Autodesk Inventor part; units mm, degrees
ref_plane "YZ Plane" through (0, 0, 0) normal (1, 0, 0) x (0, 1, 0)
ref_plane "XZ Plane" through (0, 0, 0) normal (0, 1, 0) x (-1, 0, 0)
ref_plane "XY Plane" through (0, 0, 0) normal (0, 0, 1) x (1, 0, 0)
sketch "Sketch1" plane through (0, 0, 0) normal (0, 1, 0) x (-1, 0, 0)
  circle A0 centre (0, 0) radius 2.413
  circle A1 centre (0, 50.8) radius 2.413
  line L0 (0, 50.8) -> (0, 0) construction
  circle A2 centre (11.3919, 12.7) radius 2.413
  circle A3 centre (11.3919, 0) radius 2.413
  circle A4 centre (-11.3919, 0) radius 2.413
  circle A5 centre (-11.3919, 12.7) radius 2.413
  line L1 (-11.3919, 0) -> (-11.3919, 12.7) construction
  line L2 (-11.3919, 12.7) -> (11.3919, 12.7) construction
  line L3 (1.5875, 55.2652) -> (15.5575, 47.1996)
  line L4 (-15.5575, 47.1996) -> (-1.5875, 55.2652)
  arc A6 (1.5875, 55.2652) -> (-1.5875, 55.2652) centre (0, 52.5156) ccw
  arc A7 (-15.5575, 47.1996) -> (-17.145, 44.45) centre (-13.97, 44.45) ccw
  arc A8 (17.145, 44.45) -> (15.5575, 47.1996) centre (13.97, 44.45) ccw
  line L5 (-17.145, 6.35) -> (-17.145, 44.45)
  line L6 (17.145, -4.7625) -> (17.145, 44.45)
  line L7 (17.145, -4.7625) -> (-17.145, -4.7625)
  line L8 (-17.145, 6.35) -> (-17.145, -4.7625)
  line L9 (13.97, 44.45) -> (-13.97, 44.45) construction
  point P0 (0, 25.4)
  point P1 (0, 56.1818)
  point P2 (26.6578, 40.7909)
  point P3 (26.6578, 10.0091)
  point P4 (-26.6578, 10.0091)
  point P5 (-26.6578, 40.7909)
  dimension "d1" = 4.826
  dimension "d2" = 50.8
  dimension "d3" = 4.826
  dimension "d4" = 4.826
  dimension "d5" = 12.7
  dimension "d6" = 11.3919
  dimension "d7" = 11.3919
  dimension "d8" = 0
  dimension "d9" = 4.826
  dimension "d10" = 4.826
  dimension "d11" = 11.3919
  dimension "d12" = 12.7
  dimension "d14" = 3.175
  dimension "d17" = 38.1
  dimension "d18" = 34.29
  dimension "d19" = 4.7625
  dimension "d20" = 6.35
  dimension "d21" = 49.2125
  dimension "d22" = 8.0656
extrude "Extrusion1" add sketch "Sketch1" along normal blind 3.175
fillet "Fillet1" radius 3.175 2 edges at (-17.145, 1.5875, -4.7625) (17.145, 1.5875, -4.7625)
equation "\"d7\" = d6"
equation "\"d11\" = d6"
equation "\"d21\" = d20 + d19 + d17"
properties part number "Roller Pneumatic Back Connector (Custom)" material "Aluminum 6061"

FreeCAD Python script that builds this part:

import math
import FreeCAD as App
import Part
import Sketcher

V = App.Vector
Q = App.Units.Quantity


def edges_at(feature, points):
    """Names of the edges that pass closest to the given points."""
    edges = feature.Shape.Edges
    near = lambda p: min(range(len(edges)), key=lambda i: edges[i].distToShape(Part.Vertex(*p))[0])
    return sorted({f"Edge{near(p) + 1}" for p in points})

doc = App.newDocument("Part")
body = doc.addObject("PartDesign::Body", "Body")

# Sketch on XZ plane
sketch1 = doc.addObject("Sketcher::SketchObject", "Sketch")
body.addObject(sketch1)
sketch1.AttachmentSupport = (doc.XZ_Plane, [""])
sketch1.MapMode = "FlatFace"
sketch1.addGeometry([
    Part.LineSegment(V(-15.6, 47.2, 0), V(-1.6, 55.3, 0)),  # 0
    Part.ArcOfCircle(Part.Circle(V(0, 52.5, 0), V(0, 0, 1), 3.2), math.radians(60), math.radians(120)),  # 1
    Part.LineSegment(V(1.6, 55.3, 0), V(15.6, 47.2, 0)),  # 2
    Part.ArcOfCircle(Part.Circle(V(14, 44.5, 0), V(0, 0, 1), 3.2), math.radians(0), math.radians(60)),  # 3
    Part.LineSegment(V(17.1, 44.5, 0), V(17.1, -4.8, 0)),  # 4
    Part.LineSegment(V(17.1, -4.8, 0), V(-17.1, -4.8, 0)),  # 5
    Part.LineSegment(V(-17.1, -4.8, 0), V(-17.1, 44.5, 0)),  # 6
    Part.ArcOfCircle(Part.Circle(V(-14, 44.5, 0), V(0, 0, 1), 3.2), math.radians(120), math.radians(180)),  # 7
    Part.Circle(V(11.4, 0, 0), V(0, 0, 1), 2.4),  # 8
    Part.Circle(V(0, 0, 0), V(0, 0, 1), 2.4),  # 9
    Part.Circle(V(11.4, 12.7, 0), V(0, 0, 1), 2.4),  # 10
    Part.Circle(V(-11.4, 0, 0), V(0, 0, 1), 2.4),  # 11
    Part.Circle(V(-11.4, 12.7, 0), V(0, 0, 1), 2.4),  # 12
    Part.Circle(V(0, 50.8, 0), V(0, 0, 1), 2.4),  # 13
], False)
sketch1.addConstraint([
    Sketcher.Constraint("Tangent", 0, 2, 1, 2),
    Sketcher.Constraint("Tangent", 1, 1, 2, 1),
    Sketcher.Constraint("Tangent", 2, 2, 3, 2),
    Sketcher.Constraint("Tangent", 3, 1, 4, 1),
    Sketcher.Constraint("Coincident", 4, 2, 5, 1),
    Sketcher.Constraint("Coincident", 5, 2, 6, 1),
    Sketcher.Constraint("Tangent", 6, 2, 7, 2),
    Sketcher.Constraint("Tangent", 7, 1, 0, 1),
    Sketcher.Constraint("Vertical", 4),
    Sketcher.Constraint("Horizontal", 5),
    Sketcher.Constraint("Vertical", 6),
    Sketcher.Constraint("Coincident", 9, 3, -1, 1),
    Sketcher.Constraint("Equal", 1, 3),
    Sketcher.Constraint("Equal", 3, 7),
    Sketcher.Constraint("Equal", 8, 9),
    Sketcher.Constraint("Equal", 9, 10),
    Sketcher.Constraint("Equal", 10, 11),
    Sketcher.Constraint("Equal", 11, 12),
    Sketcher.Constraint("Equal", 12, 13),
    Sketcher.Constraint("Symmetric", 8, 3, 11, 3, -1, 1),
    Sketcher.Constraint("Symmetric", 3, 3, 7, 3, -2),
    Sketcher.Constraint("Symmetric", 10, 3, 12, 3, -2),
    Sketcher.Constraint("PointOnObject", 1, 3, -2),
    Sketcher.Constraint("PointOnObject", 8, 3, -1),
    Sketcher.Constraint("PointOnObject", 13, 3, -2),
    Sketcher.Constraint("Vertical", 8, 3, 10, 3),
    Sketcher.Constraint("Diameter", 8, Q("0.19 in")),
    Sketcher.Constraint("DistanceY", -1, 1, 13, 3, Q("2 in")),
    Sketcher.Constraint("Radius", 1, Q("0.125 in")),
    Sketcher.Constraint("DistanceX", 5, 2, 5, 1, Q("1.35 in")),
    Sketcher.Constraint("DistanceY", -1, 1, 10, 3, Q("0.5 in")),
    Sketcher.Constraint("DistanceY", 4, 2, 4, 1, Q("1.9375 in")),
    Sketcher.Constraint("DistanceY", 3, 3, 13, 3, Q("0.25 in")),
    Sketcher.Constraint("Angle", 0, Q("30 deg")),
    Sketcher.Constraint("DistanceX", -1, 1, 8, 3, Q("0.4485 in")),
])
pad1 = doc.addObject("PartDesign::Pad", "Pad")
body.addObject(pad1)
pad1.Profile = sketch1
pad1.Length = Q("0.125 in")
pad1.Reversed = True
doc.recompute()

fillet = doc.addObject("PartDesign::Fillet", "Fillet")
body.addObject(fillet)
fillet.Base = (pad1, edges_at(pad1, [(-17.145, 1.587, -4.763), (17.145, 1.587, -4.763)]))
fillet.Radius = Q("0.125 in")

doc.recompute()
